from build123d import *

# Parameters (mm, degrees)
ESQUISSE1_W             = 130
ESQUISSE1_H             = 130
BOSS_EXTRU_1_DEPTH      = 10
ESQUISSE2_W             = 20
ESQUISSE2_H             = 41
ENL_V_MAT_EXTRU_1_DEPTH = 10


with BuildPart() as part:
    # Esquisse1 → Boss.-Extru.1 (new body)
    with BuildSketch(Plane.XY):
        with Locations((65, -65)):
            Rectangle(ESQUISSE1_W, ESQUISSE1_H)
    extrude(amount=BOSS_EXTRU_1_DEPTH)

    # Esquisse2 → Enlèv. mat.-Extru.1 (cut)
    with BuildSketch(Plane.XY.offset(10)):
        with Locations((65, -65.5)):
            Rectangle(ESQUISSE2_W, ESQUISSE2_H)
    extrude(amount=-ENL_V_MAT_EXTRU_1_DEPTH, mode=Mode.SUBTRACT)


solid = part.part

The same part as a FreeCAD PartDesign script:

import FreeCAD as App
import Part
import Sketcher

V = App.Vector
Q = App.Units.Quantity


def add_polygon(sketch, points):
    """Adds a closed chain of lines whose ends are joined by coincident constraints."""
    first, n = sketch.GeometryCount, len(points)
    for a, b in zip(points, points[1:] + points[:1]):
        sketch.addGeometry(Part.LineSegment(App.Vector(*a, 0), App.Vector(*b, 0)), False)
    for i in range(n):
        sketch.addConstraint(Sketcher.Constraint("Coincident", first + i, 2, first + (i + 1) % n, 1))

doc = App.newDocument("Part")
params = doc.addObject("Spreadsheet::Sheet", "Params")
for row, (alias, value) in enumerate([
    ("sketch1_width", "130 mm"),
    ("pad1_length", "10 mm"),
    ("sketch2_width", "20 mm"),
    ("sketch2_height", "41 mm"),
    ("pocket1_length", "10 mm"),
], start=1):
    params.set(f"A{row}", alias)
    params.set(f"B{row}", "=" + value)
    params.setAlias(f"B{row}", alias)

body = doc.addObject("PartDesign::Body", "Body")

sketch1 = body.newObject("Sketcher::SketchObject", "Sketch")
sketch1.AttachmentSupport = (doc.getObject("XY_Plane"), [""])
sketch1.MapMode = "FlatFace"
add_polygon(sketch1, [(0, 0), (0, -130), (130, -130), (130, 0)])
sketch1.addConstraint(Sketcher.Constraint("Vertical", 0))
sketch1.addConstraint(Sketcher.Constraint("Horizontal", 1))
sketch1.addConstraint(Sketcher.Constraint("Vertical", 2))
sketch1.addConstraint(Sketcher.Constraint("Horizontal", 3))
sketch1.addConstraint(Sketcher.Constraint("Coincident", 3, 2, -1, 1))
sketch1.addConstraint(Sketcher.Constraint("Equal", 3, 0))
sketch1.addConstraint(Sketcher.Constraint("DistanceX", 1, 1, 1, 2, Q("130 mm")))
sketch1.setExpression("Constraints[10]", "Params.sketch1_width")
pad1 = body.newObject("PartDesign::Pad", "Pad")
pad1.Profile = sketch1
pad1.setExpression("Length", "Params.pad1_length")

sketch2 = body.newObject("Sketcher::SketchObject", "Sketch001")
sketch2.AttachmentSupport = (doc.getObject("XY_Plane"), [""])
sketch2.MapMode = "FlatFace"
sketch2.AttachmentOffset = App.Placement(V(0, 0, 10), App.Rotation())
add_polygon(sketch2, [(55, -45), (55, -86), (75, -86), (75, -45)])
sketch2.addConstraint(Sketcher.Constraint("Vertical", 0))
sketch2.addConstraint(Sketcher.Constraint("Horizontal", 1))
sketch2.addConstraint(Sketcher.Constraint("Vertical", 2))
sketch2.addConstraint(Sketcher.Constraint("Horizontal", 3))
sketch2.addConstraint(Sketcher.Constraint("DistanceX", 1, 1, 1, 2, Q("20 mm")))
sketch2.addConstraint(Sketcher.Constraint("DistanceY", 0, 2, 0, 1, Q("41 mm")))
sketch2.addConstraint(Sketcher.Constraint("DistanceX", -1, 1, 0, 2, Q("55 mm")))
sketch2.addConstraint(Sketcher.Constraint("DistanceY", 0, 2, -1, 1, Q("86 mm")))
sketch2.setExpression("Constraints[8]", "Params.sketch2_width")
sketch2.setExpression("Constraints[9]", "Params.sketch2_height")
pocket1 = body.newObject("PartDesign::Pocket", "Pocket")
pocket1.Profile = sketch2
pocket1.setExpression("Length", "Params.pocket1_length")

doc.recompute()
